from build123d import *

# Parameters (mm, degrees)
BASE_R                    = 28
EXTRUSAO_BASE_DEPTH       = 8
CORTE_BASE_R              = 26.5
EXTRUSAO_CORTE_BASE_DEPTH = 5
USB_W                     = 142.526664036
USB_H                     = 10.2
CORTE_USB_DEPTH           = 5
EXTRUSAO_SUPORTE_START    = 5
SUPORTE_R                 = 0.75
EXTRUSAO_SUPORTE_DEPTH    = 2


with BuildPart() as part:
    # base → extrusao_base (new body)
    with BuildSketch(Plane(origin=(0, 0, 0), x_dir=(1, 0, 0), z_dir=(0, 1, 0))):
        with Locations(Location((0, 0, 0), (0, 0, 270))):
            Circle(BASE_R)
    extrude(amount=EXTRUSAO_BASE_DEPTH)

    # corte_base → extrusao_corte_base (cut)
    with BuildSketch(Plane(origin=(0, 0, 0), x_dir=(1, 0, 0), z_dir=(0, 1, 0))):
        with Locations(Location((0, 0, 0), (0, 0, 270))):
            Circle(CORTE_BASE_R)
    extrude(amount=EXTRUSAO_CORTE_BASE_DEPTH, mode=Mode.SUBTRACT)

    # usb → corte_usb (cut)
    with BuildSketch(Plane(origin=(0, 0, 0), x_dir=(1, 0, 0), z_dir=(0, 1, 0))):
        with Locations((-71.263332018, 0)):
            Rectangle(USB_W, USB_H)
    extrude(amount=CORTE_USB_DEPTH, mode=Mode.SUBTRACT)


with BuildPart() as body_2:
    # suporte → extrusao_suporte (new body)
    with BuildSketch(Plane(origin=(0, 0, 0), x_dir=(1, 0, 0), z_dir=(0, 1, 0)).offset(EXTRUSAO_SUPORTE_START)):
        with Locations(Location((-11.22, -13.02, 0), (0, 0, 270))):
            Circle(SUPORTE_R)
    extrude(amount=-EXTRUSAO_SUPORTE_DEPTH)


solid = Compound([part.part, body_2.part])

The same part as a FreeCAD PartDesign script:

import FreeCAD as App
import Part
import Sketcher

V = App.Vector


def add_polygon(sketch, points):
    """Adds a closed chain of lines whose ends are joined by coincident constraints."""
    first, n = sketch.GeometryCount, len(points)
    for a, b in zip(points, points[1:] + points[:1]):
        sketch.addGeometry(Part.LineSegment(App.Vector(*a, 0), App.Vector(*b, 0)), False)
    for i in range(n):
        sketch.addConstraint(Sketcher.Constraint("Coincident", first + i, 2, first + (i + 1) % n, 1))

doc = App.newDocument("Part")
body = doc.addObject("PartDesign::Body", "Body")

sketch1 = body.newObject("Sketcher::SketchObject", "Sketch")
sketch1.AttachmentSupport = (doc.getObject("XZ_Plane"), [""])
sketch1.MapMode = "FlatFace"
sketch1.addGeometry(Part.Circle(V(0, 0, 0), V(0, 0, 1), 28), False)
sketch1.addConstraint(Sketcher.Constraint("Coincident", 0, 3, -1, 1))
sketch1.addConstraint(Sketcher.Constraint("Diameter", 0, 56.0))
pad1 = body.newObject("PartDesign::Pad", "Pad")
pad1.Profile = sketch1
pad1.Length = 8
pad1.Reversed = True

sketch2 = body.newObject("Sketcher::SketchObject", "Sketch001")
sketch2.AttachmentSupport = (doc.getObject("XZ_Plane"), [""])
sketch2.MapMode = "FlatFace"
sketch2.addGeometry(Part.Circle(V(0, 0, 0), V(0, 0, 1), 26), False)
sketch2.addConstraint(Sketcher.Constraint("Coincident", 0, 3, -1, 1))
sketch2.addConstraint(Sketcher.Constraint("Diameter", 0, 53.0))
pocket1 = body.newObject("PartDesign::Pocket", "Pocket")
pocket1.Profile = sketch2
pocket1.Length = 5

sketch3 = body.newObject("Sketcher::SketchObject", "Sketch002")
sketch3.AttachmentSupport = (doc.getObject("XZ_Plane"), [""])
sketch3.MapMode = "FlatFace"
add_polygon(sketch3, [(-143, -5), (-143, 5), (0, 5), (0, -5)])
sketch3.addConstraint(Sketcher.Constraint("Vertical", 0))
sketch3.addConstraint(Sketcher.Constraint("Horizontal", 1))
sketch3.addConstraint(Sketcher.Constraint("Vertical", 2))
sketch3.addConstraint(Sketcher.Constraint("Horizontal", 3))
sketch3.addConstraint(Sketcher.Constraint("Symmetric", 1, 2, 2, 2, -1, 1))
sketch3.addConstraint(Sketcher.Constraint("DistanceY", 0, 1, 0, 2, 10.2))
sketch3.addConstraint(Sketcher.Constraint("DistanceX", 1, 1, 1, 2, 142.526664))
pocket2 = body.newObject("PartDesign::Pocket", "Pocket001")
pocket2.Profile = sketch3
pocket2.Length = 5
body2 = doc.addObject("PartDesign::Body", "Body001")

sketch4 = body2.newObject("Sketcher::SketchObject", "Sketch003")
sketch4.AttachmentSupport = (doc.getObject("XZ_Plane001"), [""])
sketch4.MapMode = "FlatFace"
sketch4.AttachmentOffset = App.Placement(V(0, 0, -5), App.Rotation())
sketch4.addGeometry(Part.Circle(V(-11.2, 13, 0), V(0, 0, 1), 0.8), False)
sketch4.addConstraint(Sketcher.Constraint("Diameter", 0, 1.5))
sketch4.addConstraint(Sketcher.Constraint("DistanceX", 0, 3, -1, 1, 11.22))
sketch4.addConstraint(Sketcher.Constraint("DistanceY", -1, 1, 0, 3, 13.02))
pad2 = body2.newObject("PartDesign::Pad", "Pad001")
pad2.Profile = sketch4
pad2.Length = 2

doc.recompute()
